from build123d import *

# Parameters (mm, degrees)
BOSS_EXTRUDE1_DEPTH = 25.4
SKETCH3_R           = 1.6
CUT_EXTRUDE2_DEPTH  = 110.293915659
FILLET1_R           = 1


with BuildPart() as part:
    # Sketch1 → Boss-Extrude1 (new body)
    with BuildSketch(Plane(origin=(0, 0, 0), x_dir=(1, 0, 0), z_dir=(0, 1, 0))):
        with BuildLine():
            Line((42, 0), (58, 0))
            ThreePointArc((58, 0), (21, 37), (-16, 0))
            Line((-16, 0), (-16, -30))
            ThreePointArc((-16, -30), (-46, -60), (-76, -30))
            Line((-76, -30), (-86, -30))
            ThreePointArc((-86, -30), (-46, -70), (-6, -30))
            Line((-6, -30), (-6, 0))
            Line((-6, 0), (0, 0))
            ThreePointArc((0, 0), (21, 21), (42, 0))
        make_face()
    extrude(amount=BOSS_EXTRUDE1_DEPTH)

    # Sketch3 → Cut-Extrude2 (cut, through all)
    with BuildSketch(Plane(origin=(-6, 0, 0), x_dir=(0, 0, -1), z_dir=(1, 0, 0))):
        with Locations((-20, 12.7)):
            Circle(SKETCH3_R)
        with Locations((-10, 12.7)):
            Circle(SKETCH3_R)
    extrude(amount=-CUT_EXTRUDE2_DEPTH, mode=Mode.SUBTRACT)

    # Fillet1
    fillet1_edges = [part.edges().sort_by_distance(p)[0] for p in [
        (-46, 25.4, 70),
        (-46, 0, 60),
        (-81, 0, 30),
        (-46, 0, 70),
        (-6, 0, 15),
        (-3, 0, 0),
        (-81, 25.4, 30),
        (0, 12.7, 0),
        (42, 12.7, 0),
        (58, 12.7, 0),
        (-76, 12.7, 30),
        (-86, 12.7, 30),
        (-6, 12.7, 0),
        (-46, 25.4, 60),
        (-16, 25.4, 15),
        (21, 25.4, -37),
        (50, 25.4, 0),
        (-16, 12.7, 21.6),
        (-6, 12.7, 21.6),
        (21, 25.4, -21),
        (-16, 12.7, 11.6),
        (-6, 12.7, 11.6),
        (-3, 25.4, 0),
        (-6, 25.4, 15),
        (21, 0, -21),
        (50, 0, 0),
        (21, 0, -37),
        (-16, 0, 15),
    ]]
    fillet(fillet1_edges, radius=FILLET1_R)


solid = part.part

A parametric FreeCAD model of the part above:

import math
import FreeCAD as App
import Part
import Sketcher

V = App.Vector
Q = App.Units.Quantity

doc = App.newDocument("Part")
params = doc.addObject("Spreadsheet::Sheet", "Params")
for row, (alias, value) in enumerate([
    ("sketch1_radius", "37 mm"),
    ("sketch1_radius2", "30 mm"),
    ("sketch1_radius3", "40 mm"),
    ("sketch1_radius4", "21 mm"),
    ("sketch1_height", "30 mm"),
    ("pad1_length", "25.4 mm"),
    ("sketch2_diameter", "3.2 mm"),
    ("fillet_radius", "1 mm"),
], start=1):
    params.set(f"A{row}", alias)
    params.set(f"B{row}", "=" + value)
    params.setAlias(f"B{row}", alias)

body = doc.addObject("PartDesign::Body", "Body")

sketch1 = body.newObject("Sketcher::SketchObject", "Sketch")
sketch1.AttachmentSupport = (doc.getObject("XZ_Plane"), [""])
sketch1.MapMode = "FlatFace"
sketch1.addGeometry([
    Part.LineSegment(V(42, 0, 0), V(58, 0, 0)),
    Part.ArcOfCircle(Part.Circle(V(21, 0, 0), V(0, 0, 1), 37), math.radians(180), math.radians(360)),
    Part.LineSegment(V(-16, 0, 0), V(-16, 30, 0)),
    Part.ArcOfCircle(Part.Circle(V(-46, 30, 0), V(0, 0, 1), 30), math.radians(0), math.radians(180)),
    Part.LineSegment(V(-76, 30, 0), V(-86, 30, 0)),
    Part.ArcOfCircle(Part.Circle(V(-46, 30, 0), V(0, 0, 1), 40), math.radians(0), math.radians(180)),
    Part.LineSegment(V(-6, 30, 0), V(-6, 0, 0)),
    Part.LineSegment(V(-6, 0, 0), V(0, 0, 0)),
    Part.ArcOfCircle(Part.Circle(V(21, 0, 0), V(0, 0, 1), 21), math.radians(180), math.radians(360)),
], False)
sketch1.addConstraint([
    Sketcher.Constraint("Coincident", 0, 2, 1, 2),
    Sketcher.Constraint("Tangent", 1, 1, 2, 1),
    Sketcher.Constraint("Tangent", 2, 2, 3, 1),
    Sketcher.Constraint("Coincident", 3, 2, 4, 1),
    Sketcher.Constraint("Coincident", 4, 2, 5, 2),
    Sketcher.Constraint("Tangent", 5, 1, 6, 1),
    Sketcher.Constraint("Coincident", 6, 2, 7, 1),
    Sketcher.Constraint("Coincident", 7, 2, 8, 1),
    Sketcher.Constraint("Coincident", 8, 2, 0, 1),
    Sketcher.Constraint("Horizontal", 0),
    Sketcher.Constraint("Vertical", 2),
    Sketcher.Constraint("Horizontal", 4),
    Sketcher.Constraint("Vertical", 6),
    Sketcher.Constraint("Horizontal", 7),
    Sketcher.Constraint("Coincident", 7, 2, -1, 1),
    Sketcher.Constraint("Coincident", 5, 3, 3, 3),
    Sketcher.Constraint("Coincident", 8, 3, 1, 3),
    Sketcher.Constraint("PointOnObject", 1, 3, -1),
    Sketcher.Constraint("PointOnObject", 0, 2, -1),
    Sketcher.Constraint("Horizontal", 2, 2, 3, 2),
    Sketcher.Constraint("Radius", 1, Q("37 mm")),
    Sketcher.Constraint("Radius", 3, Q("30 mm")),
    Sketcher.Constraint("Radius", 5, Q("40 mm")),
    Sketcher.Constraint("Radius", 8, Q("21 mm")),
    Sketcher.Constraint("DistanceY", 2, 1, 2, 2, Q("30 mm")),
])
sketch1.setExpression("Constraints[20]", "Params.sketch1_radius")
sketch1.setExpression("Constraints[21]", "Params.sketch1_radius2")
sketch1.setExpression("Constraints[22]", "Params.sketch1_radius3")
sketch1.setExpression("Constraints[23]", "Params.sketch1_radius4")
sketch1.setExpression("Constraints[24]", "Params.sketch1_height")
pad1 = body.newObject("PartDesign::Pad", "Pad")
pad1.Profile = sketch1
pad1.setExpression("Length", "Params.pad1_length")
pad1.Reversed = True

sketch2 = body.newObject("Sketcher::SketchObject", "Sketch001")
sketch2.AttachmentSupport = (doc.getObject("YZ_Plane"), [""])
sketch2.MapMode = "FlatFace"
sketch2.AttachmentOffset = App.Placement(V(0, 0, -6), App.Rotation())
sketch2.addGeometry([
    Part.Circle(V(12.7, 20, 0), V(0, 0, 1), 1.6),
    Part.Circle(V(12.7, 10, 0), V(0, 0, 1), 1.6),
], False)
sketch2.addConstraint([
    Sketcher.Constraint("Equal", 0, 1),
    Sketcher.Constraint("Vertical", 0, 3, 1, 3),
    Sketcher.Constraint("Diameter", 0, Q("3.2 mm")),
    Sketcher.Constraint("DistanceY", -1, 1, 0, 3, Q("20 mm")),
    Sketcher.Constraint("DistanceY", -1, 1, 1, 3, Q("10 mm")),
    Sketcher.Constraint("DistanceX", -1, 1, 0, 3, Q("12.7 mm")),
])
sketch2.setExpression("Constraints[2]", "Params.sketch2_diameter")
pocket1 = body.newObject("PartDesign::Pocket", "Pocket")
pocket1.Profile = sketch2
pocket1.Type = "ThroughAll"
doc.recompute()

fillet = body.newObject("PartDesign::Fillet", "Fillet")
fillet.Base = (pocket1, ["Edge1"])
fillet.UseAllEdges = True
fillet.setExpression("Radius", "Params.fillet_radius")

doc.recompute()
